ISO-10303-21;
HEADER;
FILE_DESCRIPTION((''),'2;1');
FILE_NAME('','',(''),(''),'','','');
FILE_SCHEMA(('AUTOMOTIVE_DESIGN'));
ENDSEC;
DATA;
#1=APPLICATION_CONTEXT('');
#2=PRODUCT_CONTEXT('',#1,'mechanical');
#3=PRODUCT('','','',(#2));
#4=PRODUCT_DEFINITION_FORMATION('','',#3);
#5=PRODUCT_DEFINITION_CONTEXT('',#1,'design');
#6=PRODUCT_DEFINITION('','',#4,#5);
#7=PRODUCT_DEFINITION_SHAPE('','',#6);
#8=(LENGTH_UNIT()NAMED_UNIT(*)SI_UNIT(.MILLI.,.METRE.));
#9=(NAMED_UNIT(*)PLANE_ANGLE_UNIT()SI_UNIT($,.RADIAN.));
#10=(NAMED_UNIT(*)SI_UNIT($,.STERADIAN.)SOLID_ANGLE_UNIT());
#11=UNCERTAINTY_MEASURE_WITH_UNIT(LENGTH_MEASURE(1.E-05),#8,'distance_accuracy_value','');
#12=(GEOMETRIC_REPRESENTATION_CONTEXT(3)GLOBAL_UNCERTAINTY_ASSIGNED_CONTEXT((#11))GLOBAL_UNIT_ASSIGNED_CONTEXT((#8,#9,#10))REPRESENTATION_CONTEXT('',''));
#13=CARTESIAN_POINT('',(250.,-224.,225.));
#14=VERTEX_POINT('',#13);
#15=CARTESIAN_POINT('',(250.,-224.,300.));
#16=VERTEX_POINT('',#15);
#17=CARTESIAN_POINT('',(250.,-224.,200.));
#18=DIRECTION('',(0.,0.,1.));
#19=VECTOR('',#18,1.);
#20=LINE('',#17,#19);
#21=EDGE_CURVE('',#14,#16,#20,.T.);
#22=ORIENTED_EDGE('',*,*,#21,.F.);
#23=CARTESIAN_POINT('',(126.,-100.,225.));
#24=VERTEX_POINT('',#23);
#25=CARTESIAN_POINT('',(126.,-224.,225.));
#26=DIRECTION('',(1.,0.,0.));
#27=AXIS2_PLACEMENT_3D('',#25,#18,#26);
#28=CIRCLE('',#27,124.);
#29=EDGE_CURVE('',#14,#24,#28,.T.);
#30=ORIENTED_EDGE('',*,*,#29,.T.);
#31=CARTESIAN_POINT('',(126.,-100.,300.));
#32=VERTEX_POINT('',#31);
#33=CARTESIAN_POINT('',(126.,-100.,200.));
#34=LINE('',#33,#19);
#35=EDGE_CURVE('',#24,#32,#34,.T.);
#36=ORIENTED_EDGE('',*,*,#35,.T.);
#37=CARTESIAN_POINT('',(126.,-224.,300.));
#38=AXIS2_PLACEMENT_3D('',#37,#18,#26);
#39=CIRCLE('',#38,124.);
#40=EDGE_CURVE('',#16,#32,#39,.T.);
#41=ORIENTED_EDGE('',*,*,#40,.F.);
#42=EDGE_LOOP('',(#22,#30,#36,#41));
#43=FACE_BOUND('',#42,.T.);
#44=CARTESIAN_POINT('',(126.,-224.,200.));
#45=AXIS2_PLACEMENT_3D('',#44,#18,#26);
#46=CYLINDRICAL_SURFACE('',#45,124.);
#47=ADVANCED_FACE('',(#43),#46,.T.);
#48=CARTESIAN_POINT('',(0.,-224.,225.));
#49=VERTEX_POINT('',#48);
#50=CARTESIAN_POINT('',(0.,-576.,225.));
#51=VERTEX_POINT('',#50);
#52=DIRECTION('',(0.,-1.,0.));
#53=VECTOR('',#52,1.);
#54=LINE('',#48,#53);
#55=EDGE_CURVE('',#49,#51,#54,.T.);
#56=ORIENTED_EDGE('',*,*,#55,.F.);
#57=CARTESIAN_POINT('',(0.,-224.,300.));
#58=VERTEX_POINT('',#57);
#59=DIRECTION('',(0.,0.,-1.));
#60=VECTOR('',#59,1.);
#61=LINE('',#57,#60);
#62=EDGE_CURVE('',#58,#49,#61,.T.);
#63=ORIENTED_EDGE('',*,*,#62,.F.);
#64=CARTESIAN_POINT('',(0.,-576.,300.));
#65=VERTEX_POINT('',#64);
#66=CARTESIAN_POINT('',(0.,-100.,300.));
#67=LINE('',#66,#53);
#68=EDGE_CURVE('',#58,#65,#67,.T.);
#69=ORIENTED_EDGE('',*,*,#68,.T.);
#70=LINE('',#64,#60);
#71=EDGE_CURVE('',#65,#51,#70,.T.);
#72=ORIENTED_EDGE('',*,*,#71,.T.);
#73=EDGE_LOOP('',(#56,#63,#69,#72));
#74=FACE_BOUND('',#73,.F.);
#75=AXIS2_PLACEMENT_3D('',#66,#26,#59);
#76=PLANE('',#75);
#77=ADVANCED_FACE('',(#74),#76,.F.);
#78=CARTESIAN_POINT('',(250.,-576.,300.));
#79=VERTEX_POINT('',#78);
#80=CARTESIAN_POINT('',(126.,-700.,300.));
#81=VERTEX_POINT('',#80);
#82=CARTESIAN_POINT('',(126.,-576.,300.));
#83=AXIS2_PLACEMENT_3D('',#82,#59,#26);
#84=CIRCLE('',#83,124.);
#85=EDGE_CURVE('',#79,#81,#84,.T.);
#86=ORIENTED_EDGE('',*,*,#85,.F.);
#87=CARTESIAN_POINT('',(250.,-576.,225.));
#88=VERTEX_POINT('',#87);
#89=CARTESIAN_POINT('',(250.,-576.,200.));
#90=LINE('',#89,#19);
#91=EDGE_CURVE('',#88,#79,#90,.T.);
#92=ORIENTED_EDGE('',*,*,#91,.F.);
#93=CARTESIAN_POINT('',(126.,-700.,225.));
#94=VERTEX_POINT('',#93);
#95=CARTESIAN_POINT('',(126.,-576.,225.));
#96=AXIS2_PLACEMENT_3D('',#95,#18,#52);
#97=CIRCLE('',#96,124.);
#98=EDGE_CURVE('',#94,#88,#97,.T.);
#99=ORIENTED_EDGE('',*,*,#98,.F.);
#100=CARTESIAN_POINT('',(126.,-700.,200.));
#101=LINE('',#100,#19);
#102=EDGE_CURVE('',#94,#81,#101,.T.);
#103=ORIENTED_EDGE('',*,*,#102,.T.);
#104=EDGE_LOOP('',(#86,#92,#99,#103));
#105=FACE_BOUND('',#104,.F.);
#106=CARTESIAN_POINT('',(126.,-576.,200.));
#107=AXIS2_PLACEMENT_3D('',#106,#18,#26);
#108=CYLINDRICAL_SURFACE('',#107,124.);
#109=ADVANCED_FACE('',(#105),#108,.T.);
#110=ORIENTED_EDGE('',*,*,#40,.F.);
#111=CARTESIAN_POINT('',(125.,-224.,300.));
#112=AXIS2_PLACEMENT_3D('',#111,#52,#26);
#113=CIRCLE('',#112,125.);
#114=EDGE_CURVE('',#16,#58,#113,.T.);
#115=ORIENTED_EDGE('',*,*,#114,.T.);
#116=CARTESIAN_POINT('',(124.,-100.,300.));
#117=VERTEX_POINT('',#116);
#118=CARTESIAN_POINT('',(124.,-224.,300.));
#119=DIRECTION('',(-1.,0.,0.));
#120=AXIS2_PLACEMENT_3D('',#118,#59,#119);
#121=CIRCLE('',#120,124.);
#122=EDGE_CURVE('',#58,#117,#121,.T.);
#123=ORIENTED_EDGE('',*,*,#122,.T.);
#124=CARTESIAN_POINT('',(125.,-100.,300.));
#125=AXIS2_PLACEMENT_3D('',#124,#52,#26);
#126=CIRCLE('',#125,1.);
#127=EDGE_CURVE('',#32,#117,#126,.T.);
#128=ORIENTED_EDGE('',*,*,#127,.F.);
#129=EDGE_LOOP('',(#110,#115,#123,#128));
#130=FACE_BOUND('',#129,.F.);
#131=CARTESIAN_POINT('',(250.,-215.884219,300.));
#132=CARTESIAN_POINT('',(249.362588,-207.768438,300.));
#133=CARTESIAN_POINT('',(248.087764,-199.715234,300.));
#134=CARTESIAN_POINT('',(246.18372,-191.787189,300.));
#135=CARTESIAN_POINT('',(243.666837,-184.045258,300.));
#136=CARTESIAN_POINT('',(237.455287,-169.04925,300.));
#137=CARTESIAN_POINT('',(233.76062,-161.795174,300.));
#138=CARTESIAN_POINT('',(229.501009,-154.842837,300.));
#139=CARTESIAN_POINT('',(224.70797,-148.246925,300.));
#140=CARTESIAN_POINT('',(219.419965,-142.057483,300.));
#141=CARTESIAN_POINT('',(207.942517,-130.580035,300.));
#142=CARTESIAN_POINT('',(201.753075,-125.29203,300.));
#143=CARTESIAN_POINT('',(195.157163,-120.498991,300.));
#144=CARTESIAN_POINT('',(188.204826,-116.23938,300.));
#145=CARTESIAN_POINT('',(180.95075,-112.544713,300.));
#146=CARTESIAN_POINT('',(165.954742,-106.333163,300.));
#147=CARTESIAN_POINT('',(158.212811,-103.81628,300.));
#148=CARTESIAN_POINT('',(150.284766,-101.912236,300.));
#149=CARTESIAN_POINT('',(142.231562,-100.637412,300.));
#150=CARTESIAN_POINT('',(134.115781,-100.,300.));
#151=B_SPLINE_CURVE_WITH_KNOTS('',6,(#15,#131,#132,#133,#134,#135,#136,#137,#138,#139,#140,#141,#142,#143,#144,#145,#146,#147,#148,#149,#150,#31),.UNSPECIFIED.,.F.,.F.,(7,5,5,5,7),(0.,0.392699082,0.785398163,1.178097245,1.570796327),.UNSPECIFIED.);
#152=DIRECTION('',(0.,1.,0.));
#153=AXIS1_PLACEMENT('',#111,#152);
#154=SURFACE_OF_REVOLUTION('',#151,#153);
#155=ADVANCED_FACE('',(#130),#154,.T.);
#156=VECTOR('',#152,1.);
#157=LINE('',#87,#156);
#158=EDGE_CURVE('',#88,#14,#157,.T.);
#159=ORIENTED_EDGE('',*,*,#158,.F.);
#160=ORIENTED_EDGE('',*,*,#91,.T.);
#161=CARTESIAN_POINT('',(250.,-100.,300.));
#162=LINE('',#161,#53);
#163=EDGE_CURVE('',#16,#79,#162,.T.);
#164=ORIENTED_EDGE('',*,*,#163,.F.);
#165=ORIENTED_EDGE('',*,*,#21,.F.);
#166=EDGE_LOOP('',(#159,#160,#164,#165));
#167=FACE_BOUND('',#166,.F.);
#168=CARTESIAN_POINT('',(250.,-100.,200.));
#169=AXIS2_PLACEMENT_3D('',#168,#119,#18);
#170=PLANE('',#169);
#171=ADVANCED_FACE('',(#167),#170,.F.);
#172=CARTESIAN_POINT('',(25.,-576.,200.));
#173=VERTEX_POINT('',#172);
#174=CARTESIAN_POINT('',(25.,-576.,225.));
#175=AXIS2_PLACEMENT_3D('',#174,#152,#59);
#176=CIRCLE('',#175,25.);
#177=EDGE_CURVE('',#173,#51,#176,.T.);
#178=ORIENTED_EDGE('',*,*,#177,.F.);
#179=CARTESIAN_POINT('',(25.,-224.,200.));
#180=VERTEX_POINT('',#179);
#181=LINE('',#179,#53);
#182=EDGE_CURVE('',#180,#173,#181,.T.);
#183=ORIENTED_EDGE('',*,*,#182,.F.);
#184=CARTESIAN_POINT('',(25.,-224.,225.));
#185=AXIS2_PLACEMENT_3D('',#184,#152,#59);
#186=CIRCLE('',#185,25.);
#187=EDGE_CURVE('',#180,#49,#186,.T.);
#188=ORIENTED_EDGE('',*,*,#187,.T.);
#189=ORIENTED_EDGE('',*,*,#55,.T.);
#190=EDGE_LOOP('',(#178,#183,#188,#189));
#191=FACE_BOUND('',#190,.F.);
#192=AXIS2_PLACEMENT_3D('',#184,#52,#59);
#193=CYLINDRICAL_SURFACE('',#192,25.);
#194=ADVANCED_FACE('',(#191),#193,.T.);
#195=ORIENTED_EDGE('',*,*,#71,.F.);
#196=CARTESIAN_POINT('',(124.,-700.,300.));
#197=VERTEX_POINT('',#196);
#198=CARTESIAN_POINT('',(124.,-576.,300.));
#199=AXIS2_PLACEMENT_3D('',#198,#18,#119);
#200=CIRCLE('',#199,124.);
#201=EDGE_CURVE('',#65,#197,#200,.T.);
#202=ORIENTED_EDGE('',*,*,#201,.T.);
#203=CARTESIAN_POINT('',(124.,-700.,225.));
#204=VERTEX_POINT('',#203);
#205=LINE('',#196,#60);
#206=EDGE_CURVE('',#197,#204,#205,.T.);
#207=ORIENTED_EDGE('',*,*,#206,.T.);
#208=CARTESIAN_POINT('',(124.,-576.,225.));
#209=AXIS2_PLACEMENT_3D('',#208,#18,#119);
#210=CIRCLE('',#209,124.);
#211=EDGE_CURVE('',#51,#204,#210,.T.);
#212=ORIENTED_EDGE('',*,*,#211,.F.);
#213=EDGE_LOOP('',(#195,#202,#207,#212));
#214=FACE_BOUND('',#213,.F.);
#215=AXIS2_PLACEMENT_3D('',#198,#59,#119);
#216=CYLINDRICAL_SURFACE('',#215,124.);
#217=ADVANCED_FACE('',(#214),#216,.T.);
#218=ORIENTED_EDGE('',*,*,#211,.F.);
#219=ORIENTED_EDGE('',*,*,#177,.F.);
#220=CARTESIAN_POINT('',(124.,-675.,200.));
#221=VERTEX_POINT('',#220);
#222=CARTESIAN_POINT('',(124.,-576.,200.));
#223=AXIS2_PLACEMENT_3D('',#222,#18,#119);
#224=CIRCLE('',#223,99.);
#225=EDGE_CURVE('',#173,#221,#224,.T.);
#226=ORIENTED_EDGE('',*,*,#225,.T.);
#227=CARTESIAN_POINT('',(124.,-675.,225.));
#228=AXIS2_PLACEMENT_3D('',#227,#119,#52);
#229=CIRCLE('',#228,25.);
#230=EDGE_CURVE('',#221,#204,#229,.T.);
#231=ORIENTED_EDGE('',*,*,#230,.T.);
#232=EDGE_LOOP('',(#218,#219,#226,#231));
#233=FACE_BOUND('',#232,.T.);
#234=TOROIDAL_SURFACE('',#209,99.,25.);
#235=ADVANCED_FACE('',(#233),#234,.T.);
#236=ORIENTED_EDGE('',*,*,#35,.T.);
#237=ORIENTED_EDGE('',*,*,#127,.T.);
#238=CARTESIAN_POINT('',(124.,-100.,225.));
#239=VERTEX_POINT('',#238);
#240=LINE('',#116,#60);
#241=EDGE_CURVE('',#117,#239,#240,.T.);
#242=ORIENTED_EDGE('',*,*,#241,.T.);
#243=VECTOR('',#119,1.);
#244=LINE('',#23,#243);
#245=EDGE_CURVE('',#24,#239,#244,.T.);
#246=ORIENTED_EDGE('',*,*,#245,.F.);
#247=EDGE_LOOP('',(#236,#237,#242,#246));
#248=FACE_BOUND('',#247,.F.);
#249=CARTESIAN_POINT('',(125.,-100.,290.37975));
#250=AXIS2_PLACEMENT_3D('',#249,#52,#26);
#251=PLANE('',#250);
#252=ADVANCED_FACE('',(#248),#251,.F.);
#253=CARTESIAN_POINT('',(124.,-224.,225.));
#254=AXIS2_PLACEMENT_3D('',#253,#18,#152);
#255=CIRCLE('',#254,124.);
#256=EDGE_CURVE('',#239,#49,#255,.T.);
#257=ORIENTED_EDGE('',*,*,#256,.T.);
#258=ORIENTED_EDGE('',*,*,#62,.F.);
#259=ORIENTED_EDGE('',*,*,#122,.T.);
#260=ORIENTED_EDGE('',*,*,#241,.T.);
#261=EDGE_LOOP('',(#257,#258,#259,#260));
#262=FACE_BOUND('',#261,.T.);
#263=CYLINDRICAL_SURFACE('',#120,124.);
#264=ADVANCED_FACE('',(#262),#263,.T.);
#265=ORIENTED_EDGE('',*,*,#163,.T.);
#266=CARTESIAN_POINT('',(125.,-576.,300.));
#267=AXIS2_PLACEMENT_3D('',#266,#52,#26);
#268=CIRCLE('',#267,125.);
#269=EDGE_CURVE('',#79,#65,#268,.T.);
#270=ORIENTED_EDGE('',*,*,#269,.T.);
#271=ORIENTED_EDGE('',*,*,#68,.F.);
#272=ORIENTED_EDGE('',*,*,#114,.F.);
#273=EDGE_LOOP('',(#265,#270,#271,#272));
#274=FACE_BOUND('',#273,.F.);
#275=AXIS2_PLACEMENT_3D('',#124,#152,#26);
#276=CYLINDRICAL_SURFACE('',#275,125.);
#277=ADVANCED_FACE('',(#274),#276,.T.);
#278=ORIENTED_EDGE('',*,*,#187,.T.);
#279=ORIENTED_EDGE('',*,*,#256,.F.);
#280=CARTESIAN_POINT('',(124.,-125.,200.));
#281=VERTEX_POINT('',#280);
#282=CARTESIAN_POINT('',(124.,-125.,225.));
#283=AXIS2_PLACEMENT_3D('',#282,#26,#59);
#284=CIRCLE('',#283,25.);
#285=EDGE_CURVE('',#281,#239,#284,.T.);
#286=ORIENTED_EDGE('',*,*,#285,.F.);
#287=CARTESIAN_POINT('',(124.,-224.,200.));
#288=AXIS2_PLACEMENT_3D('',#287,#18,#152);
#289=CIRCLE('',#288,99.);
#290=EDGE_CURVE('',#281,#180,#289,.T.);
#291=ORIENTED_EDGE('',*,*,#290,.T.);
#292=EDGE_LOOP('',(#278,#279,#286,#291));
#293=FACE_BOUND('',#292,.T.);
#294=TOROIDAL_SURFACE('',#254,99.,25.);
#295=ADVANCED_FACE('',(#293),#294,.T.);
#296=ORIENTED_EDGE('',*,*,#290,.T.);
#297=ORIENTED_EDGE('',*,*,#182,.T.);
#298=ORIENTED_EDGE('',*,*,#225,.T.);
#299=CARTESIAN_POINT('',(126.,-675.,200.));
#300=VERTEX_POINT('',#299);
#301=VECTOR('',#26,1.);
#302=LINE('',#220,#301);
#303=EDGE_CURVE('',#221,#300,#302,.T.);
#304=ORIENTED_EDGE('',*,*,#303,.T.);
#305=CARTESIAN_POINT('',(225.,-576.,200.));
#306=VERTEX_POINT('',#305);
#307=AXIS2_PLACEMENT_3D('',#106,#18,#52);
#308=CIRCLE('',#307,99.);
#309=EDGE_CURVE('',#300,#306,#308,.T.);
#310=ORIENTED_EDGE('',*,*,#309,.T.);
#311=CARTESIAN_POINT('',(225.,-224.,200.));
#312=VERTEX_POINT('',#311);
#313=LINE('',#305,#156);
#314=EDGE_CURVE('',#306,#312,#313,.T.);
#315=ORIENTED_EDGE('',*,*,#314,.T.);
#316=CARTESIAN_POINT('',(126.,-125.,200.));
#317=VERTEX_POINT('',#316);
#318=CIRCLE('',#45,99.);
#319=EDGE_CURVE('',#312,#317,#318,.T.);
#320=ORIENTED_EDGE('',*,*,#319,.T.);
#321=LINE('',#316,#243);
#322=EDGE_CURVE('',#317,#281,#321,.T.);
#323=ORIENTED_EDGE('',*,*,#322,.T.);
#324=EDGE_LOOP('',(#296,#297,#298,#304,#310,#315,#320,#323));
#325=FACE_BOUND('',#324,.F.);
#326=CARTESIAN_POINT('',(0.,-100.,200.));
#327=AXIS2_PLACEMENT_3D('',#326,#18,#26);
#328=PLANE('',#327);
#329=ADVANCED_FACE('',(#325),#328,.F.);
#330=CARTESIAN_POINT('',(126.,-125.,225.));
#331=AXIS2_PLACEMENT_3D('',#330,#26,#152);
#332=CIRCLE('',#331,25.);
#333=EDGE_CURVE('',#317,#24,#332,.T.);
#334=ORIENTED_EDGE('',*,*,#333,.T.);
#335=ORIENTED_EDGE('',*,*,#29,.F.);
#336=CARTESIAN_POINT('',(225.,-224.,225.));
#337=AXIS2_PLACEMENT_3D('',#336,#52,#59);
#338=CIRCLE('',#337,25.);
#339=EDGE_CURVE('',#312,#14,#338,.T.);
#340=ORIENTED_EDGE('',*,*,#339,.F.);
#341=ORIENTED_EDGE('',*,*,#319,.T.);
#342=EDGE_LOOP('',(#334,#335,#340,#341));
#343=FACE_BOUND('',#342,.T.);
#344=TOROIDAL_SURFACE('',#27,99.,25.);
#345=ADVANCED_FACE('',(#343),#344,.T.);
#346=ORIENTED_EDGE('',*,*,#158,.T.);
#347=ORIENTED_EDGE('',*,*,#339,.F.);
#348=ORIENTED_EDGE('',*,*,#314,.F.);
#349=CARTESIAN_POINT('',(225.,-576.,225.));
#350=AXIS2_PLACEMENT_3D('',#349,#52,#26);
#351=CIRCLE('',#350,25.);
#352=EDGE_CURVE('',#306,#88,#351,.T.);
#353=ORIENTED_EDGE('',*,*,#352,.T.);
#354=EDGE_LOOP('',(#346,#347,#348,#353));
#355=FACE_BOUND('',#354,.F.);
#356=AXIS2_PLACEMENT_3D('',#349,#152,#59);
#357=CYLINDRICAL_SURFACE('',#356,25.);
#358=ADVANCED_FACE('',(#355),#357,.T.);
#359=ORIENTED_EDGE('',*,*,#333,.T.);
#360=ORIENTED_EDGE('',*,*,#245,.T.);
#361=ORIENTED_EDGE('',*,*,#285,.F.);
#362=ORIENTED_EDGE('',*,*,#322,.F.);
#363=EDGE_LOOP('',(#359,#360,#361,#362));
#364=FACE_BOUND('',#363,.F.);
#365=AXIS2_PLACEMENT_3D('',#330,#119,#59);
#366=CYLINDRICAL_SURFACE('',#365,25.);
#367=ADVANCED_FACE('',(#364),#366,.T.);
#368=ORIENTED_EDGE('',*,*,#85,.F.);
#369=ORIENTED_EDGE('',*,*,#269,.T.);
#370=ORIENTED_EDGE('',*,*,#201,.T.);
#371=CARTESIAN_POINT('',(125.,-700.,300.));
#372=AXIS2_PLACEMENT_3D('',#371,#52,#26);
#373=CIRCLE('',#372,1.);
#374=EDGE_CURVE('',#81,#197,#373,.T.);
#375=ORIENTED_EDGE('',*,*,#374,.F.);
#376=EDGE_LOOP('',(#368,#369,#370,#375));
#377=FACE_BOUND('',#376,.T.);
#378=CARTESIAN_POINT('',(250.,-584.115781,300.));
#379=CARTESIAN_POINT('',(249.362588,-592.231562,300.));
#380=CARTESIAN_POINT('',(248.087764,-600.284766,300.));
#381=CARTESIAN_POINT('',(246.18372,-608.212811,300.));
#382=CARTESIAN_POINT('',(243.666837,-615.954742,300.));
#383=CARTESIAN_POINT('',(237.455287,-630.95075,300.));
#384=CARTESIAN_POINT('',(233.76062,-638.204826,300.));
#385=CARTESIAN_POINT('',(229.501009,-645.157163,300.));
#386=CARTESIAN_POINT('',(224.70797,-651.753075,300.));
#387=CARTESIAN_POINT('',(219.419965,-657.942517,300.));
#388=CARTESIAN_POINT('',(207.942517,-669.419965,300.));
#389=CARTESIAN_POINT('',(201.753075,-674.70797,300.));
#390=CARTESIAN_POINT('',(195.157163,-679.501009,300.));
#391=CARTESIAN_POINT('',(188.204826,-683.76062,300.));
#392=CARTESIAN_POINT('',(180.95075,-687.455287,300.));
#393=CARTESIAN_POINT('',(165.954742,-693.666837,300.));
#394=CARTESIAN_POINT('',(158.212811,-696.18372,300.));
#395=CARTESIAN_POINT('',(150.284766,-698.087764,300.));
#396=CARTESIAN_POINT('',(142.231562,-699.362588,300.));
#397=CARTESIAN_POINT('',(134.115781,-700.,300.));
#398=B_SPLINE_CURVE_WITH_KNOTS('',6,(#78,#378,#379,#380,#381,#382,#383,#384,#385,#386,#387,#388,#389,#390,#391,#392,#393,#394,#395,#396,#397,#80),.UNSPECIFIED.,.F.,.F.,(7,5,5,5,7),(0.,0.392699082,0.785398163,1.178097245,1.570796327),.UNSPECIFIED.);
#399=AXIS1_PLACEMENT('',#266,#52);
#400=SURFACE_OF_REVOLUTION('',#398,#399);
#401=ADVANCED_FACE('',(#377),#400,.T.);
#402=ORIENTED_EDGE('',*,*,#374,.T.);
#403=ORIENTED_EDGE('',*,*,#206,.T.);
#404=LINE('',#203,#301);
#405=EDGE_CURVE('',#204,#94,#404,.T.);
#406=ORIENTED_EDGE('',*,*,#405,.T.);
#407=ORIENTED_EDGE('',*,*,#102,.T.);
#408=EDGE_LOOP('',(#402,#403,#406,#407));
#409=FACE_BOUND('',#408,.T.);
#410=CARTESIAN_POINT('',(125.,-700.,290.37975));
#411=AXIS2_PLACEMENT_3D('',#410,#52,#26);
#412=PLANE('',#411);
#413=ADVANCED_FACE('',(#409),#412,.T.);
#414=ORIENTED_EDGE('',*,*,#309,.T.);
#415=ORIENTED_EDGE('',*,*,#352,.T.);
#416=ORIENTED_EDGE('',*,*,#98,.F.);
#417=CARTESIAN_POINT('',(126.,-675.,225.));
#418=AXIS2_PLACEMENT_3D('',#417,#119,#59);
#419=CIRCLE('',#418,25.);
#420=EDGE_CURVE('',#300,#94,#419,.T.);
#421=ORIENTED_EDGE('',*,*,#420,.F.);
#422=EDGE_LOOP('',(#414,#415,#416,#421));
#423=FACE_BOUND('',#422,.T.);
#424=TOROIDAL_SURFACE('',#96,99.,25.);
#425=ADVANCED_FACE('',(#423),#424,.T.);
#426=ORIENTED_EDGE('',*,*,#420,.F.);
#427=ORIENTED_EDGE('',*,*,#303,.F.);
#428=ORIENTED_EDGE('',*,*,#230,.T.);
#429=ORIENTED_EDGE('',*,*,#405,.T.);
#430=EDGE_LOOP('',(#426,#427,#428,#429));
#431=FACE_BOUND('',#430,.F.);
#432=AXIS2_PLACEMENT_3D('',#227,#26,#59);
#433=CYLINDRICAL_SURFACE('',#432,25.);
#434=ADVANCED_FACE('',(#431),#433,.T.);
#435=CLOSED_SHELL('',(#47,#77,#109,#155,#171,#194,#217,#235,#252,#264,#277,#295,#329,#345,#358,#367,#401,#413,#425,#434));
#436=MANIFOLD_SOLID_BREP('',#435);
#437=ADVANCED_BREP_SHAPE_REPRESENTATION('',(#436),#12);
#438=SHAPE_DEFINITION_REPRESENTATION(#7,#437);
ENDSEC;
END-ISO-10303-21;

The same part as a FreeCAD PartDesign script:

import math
import FreeCAD as App
import Part
import Sketcher

V = App.Vector


def edges_at(feature, points):
    """Names of the edges that pass closest to the given points."""
    edges = feature.Shape.Edges
    near = lambda p: min(range(len(edges)), key=lambda i: edges[i].distToShape(Part.Vertex(*p))[0])
    return sorted({f"Edge{near(p) + 1}" for p in points})

doc = App.newDocument("Part")
body = doc.addObject("PartDesign::Body", "Body")

sketch1 = body.newObject("Sketcher::SketchObject", "Sketch")
sketch1.AttachmentSupport = (doc.getObject("XZ_Plane"), [""])
sketch1.MapMode = "FlatFace"
sketch1.addGeometry(Part.LineSegment(V(0, 0, 0), V(250, 0, 0)), False)
sketch1.addGeometry(Part.LineSegment(V(250, 0, 0), V(250, 100, 0)), False)
sketch1.addGeometry(Part.ArcOfCircle(Part.Circle(V(125, 100, 0), V(0, 0, 1), 125), math.radians(0), math.radians(180)), False)
sketch1.addGeometry(Part.LineSegment(V(0, 100, 0), V(0, 0, 0)), False)
sketch1.addConstraint(Sketcher.Constraint("Coincident", 0, 2, 1, 1))
sketch1.addConstraint(Sketcher.Constraint("Tangent", 1, 2, 2, 1))
sketch1.addConstraint(Sketcher.Constraint("Tangent", 2, 2, 3, 1))
sketch1.addConstraint(Sketcher.Constraint("Coincident", 3, 2, 0, 1))
sketch1.addConstraint(Sketcher.Constraint("Horizontal", 0))
sketch1.addConstraint(Sketcher.Constraint("Vertical", 1))
sketch1.addConstraint(Sketcher.Constraint("Vertical", 3))
sketch1.addConstraint(Sketcher.Constraint("Coincident", 3, 2, -1, 1))
sketch1.addConstraint(Sketcher.Constraint("Radius", 2, 125.0))
sketch1.addConstraint(Sketcher.Constraint("DistanceY", 1, 1, 1, 2, 100.0))
pad1 = body.newObject("PartDesign::Pad", "Pad")
pad1.Profile = sketch1
pad1.Length = 600
doc.recompute()

fillet = body.newObject("PartDesign::Fillet", "Fillet")
fillet.Base = (pad1, edges_at(pad1, [(125, 0, 225), (125, -600, 225)]))
fillet.Radius = 124
doc.recompute()

fillet2 = body.newObject("PartDesign::Fillet", "Fillet001")
fillet2.Base = (fillet, ["Edge1"])
fillet2.UseAllEdges = True
fillet2.Radius = 25
body2 = doc.addObject("PartDesign::Body", "Body001")
doc.recompute()

body.Placement = App.Placement(V(0, -100, 200), App.Rotation(V(0, 0, 1), 0))
boolean = body2.newObject("PartDesign::Boolean", "Boolean")
boolean.Type = "Fuse"
boolean.addObjects([body])

doc.recompute()
